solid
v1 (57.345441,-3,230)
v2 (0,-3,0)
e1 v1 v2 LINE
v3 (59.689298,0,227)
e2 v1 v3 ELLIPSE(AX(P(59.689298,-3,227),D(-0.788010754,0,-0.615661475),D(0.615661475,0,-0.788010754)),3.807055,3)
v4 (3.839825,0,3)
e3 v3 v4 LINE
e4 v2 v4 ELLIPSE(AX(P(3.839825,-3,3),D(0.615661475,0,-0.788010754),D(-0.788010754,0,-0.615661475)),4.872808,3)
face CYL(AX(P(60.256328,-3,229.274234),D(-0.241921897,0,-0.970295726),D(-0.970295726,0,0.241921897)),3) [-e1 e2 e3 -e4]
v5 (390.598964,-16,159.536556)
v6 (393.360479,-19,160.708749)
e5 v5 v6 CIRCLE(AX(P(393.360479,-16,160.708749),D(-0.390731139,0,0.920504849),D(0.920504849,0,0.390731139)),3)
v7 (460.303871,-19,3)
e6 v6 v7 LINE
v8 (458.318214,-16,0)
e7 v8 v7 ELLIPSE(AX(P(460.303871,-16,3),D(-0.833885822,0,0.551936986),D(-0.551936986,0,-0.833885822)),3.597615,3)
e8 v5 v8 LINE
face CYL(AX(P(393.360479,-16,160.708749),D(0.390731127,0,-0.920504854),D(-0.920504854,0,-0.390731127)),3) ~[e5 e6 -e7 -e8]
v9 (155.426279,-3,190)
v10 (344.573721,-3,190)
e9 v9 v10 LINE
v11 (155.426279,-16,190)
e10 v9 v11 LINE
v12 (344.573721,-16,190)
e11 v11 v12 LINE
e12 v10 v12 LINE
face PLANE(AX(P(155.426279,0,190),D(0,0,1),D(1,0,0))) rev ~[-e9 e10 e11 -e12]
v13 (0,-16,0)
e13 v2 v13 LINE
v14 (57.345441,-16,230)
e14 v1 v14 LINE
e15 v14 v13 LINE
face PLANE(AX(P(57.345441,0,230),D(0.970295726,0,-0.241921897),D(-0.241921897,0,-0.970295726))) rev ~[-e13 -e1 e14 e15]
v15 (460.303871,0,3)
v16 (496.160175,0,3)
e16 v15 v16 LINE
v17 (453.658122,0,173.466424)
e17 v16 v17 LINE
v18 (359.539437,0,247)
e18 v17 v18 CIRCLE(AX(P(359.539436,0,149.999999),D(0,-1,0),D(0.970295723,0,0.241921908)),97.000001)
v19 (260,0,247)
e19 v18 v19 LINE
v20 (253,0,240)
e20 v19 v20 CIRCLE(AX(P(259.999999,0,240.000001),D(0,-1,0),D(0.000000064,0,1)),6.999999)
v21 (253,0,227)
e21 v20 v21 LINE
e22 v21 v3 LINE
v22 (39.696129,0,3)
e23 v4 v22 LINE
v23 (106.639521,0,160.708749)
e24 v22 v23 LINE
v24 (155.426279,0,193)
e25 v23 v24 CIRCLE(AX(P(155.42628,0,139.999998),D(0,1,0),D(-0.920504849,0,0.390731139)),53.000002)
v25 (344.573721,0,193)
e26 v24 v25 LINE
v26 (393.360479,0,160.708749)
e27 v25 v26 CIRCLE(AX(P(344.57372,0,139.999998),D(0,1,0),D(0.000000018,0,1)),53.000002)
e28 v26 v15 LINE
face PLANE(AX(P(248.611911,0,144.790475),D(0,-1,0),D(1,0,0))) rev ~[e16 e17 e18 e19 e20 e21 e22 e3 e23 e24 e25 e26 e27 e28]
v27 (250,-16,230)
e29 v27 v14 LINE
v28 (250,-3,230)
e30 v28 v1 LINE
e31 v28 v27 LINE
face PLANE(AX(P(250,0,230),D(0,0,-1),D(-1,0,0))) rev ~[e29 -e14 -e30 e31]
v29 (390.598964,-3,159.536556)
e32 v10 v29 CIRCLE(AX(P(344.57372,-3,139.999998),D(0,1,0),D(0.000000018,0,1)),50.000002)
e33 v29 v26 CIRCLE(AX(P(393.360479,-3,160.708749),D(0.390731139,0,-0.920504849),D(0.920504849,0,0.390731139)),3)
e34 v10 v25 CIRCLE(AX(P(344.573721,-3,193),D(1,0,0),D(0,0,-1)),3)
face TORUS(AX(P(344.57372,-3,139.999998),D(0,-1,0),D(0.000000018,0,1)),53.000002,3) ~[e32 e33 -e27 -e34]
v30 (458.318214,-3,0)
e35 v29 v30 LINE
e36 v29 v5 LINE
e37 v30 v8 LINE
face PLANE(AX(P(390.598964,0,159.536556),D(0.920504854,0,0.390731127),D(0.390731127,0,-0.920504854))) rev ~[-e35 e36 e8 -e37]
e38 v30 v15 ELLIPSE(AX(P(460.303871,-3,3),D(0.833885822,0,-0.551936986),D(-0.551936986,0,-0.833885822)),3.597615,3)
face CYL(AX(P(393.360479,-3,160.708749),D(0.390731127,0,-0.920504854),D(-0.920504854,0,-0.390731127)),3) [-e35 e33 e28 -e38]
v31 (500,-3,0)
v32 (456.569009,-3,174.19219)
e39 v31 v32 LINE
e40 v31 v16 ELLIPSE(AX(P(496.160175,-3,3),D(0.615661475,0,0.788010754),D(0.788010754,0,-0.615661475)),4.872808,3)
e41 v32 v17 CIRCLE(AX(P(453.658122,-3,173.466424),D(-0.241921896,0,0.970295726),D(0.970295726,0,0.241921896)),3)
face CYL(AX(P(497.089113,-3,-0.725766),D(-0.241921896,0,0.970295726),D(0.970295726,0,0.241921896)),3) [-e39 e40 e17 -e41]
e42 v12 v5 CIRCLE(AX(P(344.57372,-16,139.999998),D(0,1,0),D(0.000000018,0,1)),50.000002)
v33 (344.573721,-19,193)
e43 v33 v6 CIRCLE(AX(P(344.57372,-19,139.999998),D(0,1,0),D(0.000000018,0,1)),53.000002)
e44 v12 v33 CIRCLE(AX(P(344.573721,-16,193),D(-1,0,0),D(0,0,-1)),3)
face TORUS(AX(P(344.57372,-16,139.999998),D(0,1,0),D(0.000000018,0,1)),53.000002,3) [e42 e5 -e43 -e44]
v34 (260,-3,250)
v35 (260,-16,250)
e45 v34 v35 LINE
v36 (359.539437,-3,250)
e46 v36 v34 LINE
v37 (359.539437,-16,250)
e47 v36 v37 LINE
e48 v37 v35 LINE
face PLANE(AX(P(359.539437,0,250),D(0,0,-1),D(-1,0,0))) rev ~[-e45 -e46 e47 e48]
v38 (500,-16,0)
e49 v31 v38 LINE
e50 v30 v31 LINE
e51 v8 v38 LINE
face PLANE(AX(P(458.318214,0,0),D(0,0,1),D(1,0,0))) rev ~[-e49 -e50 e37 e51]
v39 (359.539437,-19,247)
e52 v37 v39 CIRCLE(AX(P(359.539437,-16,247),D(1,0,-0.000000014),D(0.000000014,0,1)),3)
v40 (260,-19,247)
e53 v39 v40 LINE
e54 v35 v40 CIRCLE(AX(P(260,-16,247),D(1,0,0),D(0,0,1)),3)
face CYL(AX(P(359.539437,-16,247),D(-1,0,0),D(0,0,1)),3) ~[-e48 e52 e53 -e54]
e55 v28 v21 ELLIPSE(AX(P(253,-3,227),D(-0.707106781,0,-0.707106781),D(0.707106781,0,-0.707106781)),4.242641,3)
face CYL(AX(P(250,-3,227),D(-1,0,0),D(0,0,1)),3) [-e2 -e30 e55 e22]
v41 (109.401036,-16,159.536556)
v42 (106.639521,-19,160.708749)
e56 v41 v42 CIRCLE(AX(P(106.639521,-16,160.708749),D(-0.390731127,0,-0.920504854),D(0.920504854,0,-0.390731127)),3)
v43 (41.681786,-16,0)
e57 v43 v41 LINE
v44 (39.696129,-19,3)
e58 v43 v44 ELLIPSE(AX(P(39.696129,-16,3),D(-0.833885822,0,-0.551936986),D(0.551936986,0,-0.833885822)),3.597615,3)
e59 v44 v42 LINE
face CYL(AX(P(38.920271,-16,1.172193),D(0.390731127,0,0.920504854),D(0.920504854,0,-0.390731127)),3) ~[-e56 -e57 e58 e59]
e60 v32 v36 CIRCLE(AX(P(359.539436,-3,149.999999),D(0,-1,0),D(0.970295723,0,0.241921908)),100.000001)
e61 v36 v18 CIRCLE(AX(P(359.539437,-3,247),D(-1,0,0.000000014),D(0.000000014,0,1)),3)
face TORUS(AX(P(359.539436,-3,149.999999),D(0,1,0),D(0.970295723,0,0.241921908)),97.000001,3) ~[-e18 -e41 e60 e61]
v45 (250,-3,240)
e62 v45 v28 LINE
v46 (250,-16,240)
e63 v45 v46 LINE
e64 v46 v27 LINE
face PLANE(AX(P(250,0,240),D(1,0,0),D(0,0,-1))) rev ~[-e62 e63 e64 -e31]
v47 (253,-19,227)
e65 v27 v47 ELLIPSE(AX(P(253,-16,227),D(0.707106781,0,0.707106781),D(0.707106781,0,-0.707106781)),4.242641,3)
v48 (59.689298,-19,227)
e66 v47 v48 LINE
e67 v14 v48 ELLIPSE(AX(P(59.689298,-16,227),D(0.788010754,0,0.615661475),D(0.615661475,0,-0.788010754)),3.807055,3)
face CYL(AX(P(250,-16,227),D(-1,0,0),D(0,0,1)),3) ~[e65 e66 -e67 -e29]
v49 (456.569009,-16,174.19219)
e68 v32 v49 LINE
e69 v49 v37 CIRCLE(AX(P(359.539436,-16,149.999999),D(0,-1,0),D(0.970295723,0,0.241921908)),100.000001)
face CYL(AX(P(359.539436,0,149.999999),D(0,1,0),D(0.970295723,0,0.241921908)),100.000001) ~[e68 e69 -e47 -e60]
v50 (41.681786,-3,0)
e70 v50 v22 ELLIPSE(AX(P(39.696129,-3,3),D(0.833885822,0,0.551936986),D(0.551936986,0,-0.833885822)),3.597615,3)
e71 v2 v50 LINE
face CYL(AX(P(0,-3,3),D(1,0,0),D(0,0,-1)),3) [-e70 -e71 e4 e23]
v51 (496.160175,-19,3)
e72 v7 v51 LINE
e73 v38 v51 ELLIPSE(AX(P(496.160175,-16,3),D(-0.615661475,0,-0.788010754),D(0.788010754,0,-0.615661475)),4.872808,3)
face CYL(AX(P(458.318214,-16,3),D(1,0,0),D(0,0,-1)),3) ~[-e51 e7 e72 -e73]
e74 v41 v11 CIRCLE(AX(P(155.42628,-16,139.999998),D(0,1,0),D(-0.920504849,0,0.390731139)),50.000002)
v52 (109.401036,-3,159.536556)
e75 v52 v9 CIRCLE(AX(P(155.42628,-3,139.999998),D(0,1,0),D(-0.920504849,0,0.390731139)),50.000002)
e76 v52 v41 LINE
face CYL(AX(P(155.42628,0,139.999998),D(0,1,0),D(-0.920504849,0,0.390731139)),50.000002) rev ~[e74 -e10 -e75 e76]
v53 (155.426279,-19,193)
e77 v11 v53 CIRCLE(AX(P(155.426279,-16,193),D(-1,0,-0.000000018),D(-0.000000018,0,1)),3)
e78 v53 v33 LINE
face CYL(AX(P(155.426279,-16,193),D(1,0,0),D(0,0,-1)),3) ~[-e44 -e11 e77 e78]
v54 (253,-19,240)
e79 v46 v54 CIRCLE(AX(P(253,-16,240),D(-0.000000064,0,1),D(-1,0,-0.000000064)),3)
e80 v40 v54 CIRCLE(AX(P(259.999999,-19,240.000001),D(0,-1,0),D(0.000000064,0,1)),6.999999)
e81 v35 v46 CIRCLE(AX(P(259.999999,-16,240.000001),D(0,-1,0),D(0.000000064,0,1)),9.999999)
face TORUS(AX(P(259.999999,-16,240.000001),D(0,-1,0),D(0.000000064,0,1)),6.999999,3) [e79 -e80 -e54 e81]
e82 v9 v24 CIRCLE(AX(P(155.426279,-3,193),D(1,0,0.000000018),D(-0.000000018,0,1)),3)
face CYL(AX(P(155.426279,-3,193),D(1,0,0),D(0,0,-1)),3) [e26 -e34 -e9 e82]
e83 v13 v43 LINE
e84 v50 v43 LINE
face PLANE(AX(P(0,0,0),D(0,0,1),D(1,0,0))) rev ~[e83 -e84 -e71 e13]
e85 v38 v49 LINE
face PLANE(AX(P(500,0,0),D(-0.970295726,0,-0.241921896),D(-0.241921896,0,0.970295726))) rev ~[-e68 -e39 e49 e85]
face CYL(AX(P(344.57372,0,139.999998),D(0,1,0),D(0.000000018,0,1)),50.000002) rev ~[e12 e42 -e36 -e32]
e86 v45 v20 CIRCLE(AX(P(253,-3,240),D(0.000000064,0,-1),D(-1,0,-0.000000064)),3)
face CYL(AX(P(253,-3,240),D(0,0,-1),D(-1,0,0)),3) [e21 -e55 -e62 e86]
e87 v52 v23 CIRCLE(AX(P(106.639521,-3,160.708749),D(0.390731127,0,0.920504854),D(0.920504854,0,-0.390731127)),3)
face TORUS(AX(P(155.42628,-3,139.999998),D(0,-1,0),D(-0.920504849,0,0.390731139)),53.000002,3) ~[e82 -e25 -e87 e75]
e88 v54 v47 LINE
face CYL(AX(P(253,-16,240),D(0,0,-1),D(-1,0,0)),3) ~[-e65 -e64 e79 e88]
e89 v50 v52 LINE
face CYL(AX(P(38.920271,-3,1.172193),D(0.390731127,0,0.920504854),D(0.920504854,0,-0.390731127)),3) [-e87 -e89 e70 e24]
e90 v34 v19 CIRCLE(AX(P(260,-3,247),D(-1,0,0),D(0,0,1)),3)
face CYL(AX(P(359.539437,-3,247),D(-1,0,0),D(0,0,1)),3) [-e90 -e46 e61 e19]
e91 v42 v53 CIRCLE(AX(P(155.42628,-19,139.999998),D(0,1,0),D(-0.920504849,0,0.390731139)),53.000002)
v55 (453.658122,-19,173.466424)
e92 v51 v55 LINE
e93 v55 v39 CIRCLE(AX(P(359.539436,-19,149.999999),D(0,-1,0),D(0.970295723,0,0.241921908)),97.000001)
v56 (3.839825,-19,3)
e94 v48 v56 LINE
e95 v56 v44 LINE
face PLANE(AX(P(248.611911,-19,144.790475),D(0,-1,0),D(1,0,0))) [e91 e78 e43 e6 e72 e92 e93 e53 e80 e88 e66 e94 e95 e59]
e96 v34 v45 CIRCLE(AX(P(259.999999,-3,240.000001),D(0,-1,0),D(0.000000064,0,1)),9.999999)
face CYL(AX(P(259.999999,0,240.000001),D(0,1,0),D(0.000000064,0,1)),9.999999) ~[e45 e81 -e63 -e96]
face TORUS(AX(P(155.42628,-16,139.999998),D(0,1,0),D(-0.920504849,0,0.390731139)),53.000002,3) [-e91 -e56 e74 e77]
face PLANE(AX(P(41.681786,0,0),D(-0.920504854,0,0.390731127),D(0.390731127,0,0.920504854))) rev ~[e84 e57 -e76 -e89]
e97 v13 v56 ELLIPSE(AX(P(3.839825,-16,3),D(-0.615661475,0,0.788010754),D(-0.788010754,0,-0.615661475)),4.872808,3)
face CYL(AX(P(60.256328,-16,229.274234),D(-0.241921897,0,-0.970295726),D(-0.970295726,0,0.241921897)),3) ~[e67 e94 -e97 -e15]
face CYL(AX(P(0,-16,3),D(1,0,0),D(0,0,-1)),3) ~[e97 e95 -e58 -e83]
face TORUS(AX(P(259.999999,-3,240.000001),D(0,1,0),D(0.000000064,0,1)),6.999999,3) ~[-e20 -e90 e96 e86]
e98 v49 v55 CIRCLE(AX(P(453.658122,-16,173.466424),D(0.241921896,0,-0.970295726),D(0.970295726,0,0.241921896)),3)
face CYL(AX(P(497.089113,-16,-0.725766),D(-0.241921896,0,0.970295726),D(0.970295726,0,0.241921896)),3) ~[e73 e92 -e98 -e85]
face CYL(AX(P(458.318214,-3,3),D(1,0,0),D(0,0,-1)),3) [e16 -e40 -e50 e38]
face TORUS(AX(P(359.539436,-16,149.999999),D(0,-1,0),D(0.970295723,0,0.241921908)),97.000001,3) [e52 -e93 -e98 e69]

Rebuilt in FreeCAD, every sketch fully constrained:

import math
import FreeCAD as App
import Part
import Sketcher
from FreeCAD import Vector
Q = App.Units.Quantity


def edges_at(feature, points):
    """Names of the edges that pass closest to the given points."""
    edges = feature.Shape.Edges
    near = lambda p: min(range(len(edges)), key=lambda i: edges[i].distToShape(Part.Vertex(*p))[0])
    return sorted({f"Edge{near(p) + 1}" for p in points})

doc = App.newDocument("Part")
body = doc.addObject("PartDesign::Body", "Body")

sketch1 = body.newObject("Sketcher::SketchObject", "Sketch")
sketch1.AttachmentSupport = (doc.getObject("XZ_Plane"), [""])
sketch1.MapMode = "FlatFace"
sketch1.addGeometry(Part.LineSegment(Vector(57.345441, 230, 0), Vector(0, 0, 0)), False)
sketch1.addGeometry(Part.LineSegment(Vector(0, 0, 0), Vector(41.681786, 0, 0)), False)
sketch1.addGeometry(Part.LineSegment(Vector(41.681786, 0, 0), Vector(109.401036, 159.536556, 0)), False)
sketch1.addGeometry(Part.ArcOfCircle(Part.Circle(Vector(155.42628, 139.999998, 0), Vector(0, 0, 1), 50.000002), math.radians(90.000001), math.radians(156.999999)), False)
sketch1.addGeometry(Part.LineSegment(Vector(155.426279, 190, 0), Vector(344.573721, 190, 0)), False)
sketch1.addGeometry(Part.ArcOfCircle(Part.Circle(Vector(344.57372, 139.999998, 0), Vector(0, 0, 1), 50.000002), math.radians(23.000001), math.radians(89.999999)), False)
sketch1.addGeometry(Part.LineSegment(Vector(390.598964, 159.536556, 0), Vector(458.318214, 0, 0)), False)
sketch1.addGeometry(Part.LineSegment(Vector(458.318214, 0, 0), Vector(500, 0, 0)), False)
sketch1.addGeometry(Part.LineSegment(Vector(500, 0, 0), Vector(456.569009, 174.19219, 0)), False)
sketch1.addGeometry(Part.ArcOfCircle(Part.Circle(Vector(359.539436, 149.999999, 0), Vector(0, 0, 1), 100.000001), math.radians(14.000001), math.radians(89.999999)), False)
sketch1.addGeometry(Part.LineSegment(Vector(359.539437, 250, 0), Vector(260, 250, 0)), False)
sketch1.addGeometry(Part.ArcOfCircle(Part.Circle(Vector(259.999999, 240.000001, 0), Vector(0, 0, 1), 9.999999), math.radians(89.999996), math.radians(180.000004)), False)
sketch1.addGeometry(Part.LineSegment(Vector(250, 240, 0), Vector(250, 230, 0)), False)
sketch1.addGeometry(Part.LineSegment(Vector(250, 230, 0), Vector(57.345441, 230, 0)), False)
sketch1.addConstraint(Sketcher.Constraint("Coincident", 0, 2, 1, 1))
sketch1.addConstraint(Sketcher.Constraint("Coincident", 1, 2, 2, 1))
sketch1.addConstraint(Sketcher.Constraint("Tangent", 2, 2, 3, 2))
sketch1.addConstraint(Sketcher.Constraint("Tangent", 3, 1, 4, 1))
sketch1.addConstraint(Sketcher.Constraint("Tangent", 4, 2, 5, 2))
sketch1.addConstraint(Sketcher.Constraint("Tangent", 5, 1, 6, 1))
sketch1.addConstraint(Sketcher.Constraint("Coincident", 6, 2, 7, 1))
sketch1.addConstraint(Sketcher.Constraint("Coincident", 7, 2, 8, 1))
sketch1.addConstraint(Sketcher.Constraint("Tangent", 8, 2, 9, 1))
sketch1.addConstraint(Sketcher.Constraint("Tangent", 9, 2, 10, 1))
sketch1.addConstraint(Sketcher.Constraint("Tangent", 10, 2, 11, 1))
sketch1.addConstraint(Sketcher.Constraint("Tangent", 11, 2, 12, 1))
sketch1.addConstraint(Sketcher.Constraint("Coincident", 12, 2, 13, 1))
sketch1.addConstraint(Sketcher.Constraint("Coincident", 13, 2, 0, 1))
sketch1.addConstraint(Sketcher.Constraint("Horizontal", 1))
sketch1.addConstraint(Sketcher.Constraint("Horizontal", 4))
sketch1.addConstraint(Sketcher.Constraint("Horizontal", 7))
sketch1.addConstraint(Sketcher.Constraint("Horizontal", 10))
sketch1.addConstraint(Sketcher.Constraint("Vertical", 12))
sketch1.addConstraint(Sketcher.Constraint("Horizontal", 13))
sketch1.addConstraint(Sketcher.Constraint("Coincident", 0, 2, -1, 1))
sketch1.addConstraint(Sketcher.Constraint("Equal", 3, 5))
sketch1.addConstraint(Sketcher.Constraint("PointOnObject", 6, 2, -1))
sketch1.addConstraint(Sketcher.Constraint("Horizontal", 2, 2, 5, 1))
sketch1.addConstraint(Sketcher.Constraint("Equal", 1, 7))
sketch1.addConstraint(Sketcher.Constraint("Radius", 3, 50.000002))
sketch1.addConstraint(Sketcher.Constraint("Radius", 9, 100.000001))
sketch1.addConstraint(Sketcher.Constraint("Radius", 11, 9.999999))
sketch1.addConstraint(Sketcher.Constraint("DistanceY", 12, 2, 12, 1, 10.0))
sketch1.addConstraint(Sketcher.Constraint("Angle", 0, Q("-104 deg")))
sketch1.addConstraint(Sketcher.Constraint("Angle", 2, Q("67 deg")))
sketch1.addConstraint(Sketcher.Constraint("Angle", 8, Q("104 deg")))
sketch1.addConstraint(Sketcher.Constraint("DistanceY", -1, 1, 3, 3, 139.999998))
sketch1.addConstraint(Sketcher.Constraint("DistanceY", -1, 1, 9, 3, 149.999999))
sketch1.addConstraint(Sketcher.Constraint("DistanceX", -1, 1, 11, 3, 259.999999))
sketch1.addConstraint(Sketcher.Constraint("DistanceX", -1, 1, 7, 2, 500.0))
sketch1.addConstraint(Sketcher.Constraint("DistanceX", 4, 1, 4, 2, 189.147442))
pad1 = body.newObject("PartDesign::Pad", "Pad")
pad1.Profile = sketch1
pad1.Length = 19
doc.recompute()

fillet = body.newObject("PartDesign::Fillet", "Fillet")
fillet.Base = (pad1, edges_at(pad1, [
    (28.673, -19, 115),
    (20.841, -19, 0),
    (75.541, -19, 79.768),
    (127.829, -19, 181.694),
    (250, -19, 190),
    (372.171, -19, 181.694),
    (424.459, -19, 79.768),
    (479.159, -19, 0),
    (478.285, -19, 87.096),
    (421.106, -19, 228.801),
    (309.77, -19, 250),
    (252.929, -19, 247.071),
    (250, -19, 235),
    (153.673, -19, 230),
    (28.673, 0, 115),
    (20.841, 0, 0),
    (75.541, 0, 79.768),
    (127.829, 0, 181.694),
    (250, 0, 190),
    (372.171, 0, 181.694),
    (424.459, 0, 79.768),
    (479.159, 0, 0),
    (478.285, 0, 87.096),
    (421.106, 0, 228.801),
    (309.77, 0, 250),
    (252.929, 0, 247.071),
    (250, 0, 235),
    (153.673, 0, 230),
]))
fillet.Radius = 3

doc.recompute()
